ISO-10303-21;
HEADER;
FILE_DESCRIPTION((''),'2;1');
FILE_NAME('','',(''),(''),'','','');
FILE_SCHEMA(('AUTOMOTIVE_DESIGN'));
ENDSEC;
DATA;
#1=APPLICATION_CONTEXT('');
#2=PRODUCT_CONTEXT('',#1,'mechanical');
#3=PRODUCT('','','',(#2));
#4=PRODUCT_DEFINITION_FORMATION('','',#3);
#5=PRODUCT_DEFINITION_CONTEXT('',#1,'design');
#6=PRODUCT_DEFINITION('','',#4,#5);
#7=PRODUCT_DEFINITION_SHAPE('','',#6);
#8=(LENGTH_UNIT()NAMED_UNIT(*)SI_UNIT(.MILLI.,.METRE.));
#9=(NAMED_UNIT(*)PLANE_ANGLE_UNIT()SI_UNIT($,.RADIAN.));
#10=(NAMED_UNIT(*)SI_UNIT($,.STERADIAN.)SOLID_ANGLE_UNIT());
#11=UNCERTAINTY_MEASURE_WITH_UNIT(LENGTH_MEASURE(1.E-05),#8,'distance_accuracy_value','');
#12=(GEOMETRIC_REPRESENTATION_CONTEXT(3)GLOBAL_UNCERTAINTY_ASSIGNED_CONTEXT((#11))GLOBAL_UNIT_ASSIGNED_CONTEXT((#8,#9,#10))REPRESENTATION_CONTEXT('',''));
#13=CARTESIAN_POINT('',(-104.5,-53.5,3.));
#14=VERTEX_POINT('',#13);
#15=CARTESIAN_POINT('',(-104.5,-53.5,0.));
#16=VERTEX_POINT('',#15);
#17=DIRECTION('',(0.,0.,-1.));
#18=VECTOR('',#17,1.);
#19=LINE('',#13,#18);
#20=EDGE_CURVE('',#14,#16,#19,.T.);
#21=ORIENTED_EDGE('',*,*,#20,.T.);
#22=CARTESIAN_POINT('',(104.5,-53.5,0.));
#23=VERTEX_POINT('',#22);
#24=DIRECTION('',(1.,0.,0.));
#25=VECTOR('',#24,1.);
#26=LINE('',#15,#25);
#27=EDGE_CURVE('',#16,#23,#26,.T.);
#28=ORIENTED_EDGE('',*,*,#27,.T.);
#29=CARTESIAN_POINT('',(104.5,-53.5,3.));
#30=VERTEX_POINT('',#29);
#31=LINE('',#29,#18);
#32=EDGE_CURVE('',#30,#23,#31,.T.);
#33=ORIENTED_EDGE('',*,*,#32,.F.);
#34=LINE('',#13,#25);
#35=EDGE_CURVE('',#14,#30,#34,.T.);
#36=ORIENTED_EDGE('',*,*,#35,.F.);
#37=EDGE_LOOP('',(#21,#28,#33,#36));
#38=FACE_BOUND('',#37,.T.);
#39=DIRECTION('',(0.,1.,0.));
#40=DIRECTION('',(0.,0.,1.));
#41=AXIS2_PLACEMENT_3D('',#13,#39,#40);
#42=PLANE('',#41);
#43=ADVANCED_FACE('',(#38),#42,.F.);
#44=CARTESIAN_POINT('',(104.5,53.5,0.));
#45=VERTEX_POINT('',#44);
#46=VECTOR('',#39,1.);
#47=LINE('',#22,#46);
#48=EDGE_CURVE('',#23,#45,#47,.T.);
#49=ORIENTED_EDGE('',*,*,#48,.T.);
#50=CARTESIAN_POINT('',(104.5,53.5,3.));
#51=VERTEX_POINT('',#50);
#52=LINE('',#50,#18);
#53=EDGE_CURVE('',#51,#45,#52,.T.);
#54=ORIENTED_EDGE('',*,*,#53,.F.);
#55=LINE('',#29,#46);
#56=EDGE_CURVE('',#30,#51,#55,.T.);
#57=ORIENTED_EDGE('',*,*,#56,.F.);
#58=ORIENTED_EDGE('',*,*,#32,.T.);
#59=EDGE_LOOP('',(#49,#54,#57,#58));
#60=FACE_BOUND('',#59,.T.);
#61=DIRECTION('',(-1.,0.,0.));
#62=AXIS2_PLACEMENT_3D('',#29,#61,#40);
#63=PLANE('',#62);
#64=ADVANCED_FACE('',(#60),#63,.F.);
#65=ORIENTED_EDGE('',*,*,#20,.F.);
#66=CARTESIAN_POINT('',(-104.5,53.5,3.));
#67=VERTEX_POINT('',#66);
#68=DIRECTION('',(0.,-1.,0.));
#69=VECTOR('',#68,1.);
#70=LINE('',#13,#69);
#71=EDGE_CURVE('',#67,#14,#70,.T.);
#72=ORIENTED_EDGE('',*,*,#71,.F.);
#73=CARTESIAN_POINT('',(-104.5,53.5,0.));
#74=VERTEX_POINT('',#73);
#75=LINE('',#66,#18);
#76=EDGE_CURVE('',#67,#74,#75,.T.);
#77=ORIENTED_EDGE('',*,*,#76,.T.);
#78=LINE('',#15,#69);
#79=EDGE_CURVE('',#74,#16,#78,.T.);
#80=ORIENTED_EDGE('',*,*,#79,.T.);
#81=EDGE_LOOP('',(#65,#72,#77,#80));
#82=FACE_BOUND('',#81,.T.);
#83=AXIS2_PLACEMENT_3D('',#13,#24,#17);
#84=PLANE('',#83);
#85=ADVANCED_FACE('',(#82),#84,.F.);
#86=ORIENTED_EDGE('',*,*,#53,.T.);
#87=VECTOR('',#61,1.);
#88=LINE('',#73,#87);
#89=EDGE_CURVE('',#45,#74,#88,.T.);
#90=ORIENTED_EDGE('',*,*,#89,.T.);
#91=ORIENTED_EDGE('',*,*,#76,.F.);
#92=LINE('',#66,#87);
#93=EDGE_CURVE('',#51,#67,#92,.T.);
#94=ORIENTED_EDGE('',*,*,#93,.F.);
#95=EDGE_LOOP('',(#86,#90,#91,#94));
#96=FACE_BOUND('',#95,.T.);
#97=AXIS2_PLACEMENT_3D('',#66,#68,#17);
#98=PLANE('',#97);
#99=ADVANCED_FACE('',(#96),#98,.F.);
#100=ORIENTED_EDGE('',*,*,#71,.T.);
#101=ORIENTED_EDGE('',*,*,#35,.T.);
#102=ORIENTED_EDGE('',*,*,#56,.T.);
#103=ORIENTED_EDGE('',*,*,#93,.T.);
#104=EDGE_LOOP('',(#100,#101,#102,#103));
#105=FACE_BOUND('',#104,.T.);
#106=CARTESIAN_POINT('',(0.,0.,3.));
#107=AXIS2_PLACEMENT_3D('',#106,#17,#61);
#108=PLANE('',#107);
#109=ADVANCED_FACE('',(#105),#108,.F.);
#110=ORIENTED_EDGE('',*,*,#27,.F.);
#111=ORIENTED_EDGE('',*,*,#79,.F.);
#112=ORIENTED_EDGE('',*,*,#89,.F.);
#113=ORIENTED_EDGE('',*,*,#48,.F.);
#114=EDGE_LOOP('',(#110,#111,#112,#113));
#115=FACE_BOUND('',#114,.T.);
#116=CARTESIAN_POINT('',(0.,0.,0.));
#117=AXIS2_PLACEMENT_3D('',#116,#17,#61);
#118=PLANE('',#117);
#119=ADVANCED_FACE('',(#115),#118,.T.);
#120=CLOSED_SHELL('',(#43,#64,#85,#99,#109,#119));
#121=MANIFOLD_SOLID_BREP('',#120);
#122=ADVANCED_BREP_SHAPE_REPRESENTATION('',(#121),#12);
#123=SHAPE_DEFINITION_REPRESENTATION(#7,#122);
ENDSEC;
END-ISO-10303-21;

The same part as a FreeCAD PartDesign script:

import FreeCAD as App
import Part
import Sketcher


def add_polygon(sketch, points):
    """Adds a closed chain of lines whose ends are joined by coincident constraints."""
    first, n = sketch.GeometryCount, len(points)
    for a, b in zip(points, points[1:] + points[:1]):
        sketch.addGeometry(Part.LineSegment(App.Vector(*a, 0), App.Vector(*b, 0)), False)
    for i in range(n):
        sketch.addConstraint(Sketcher.Constraint("Coincident", first + i, 2, first + (i + 1) % n, 1))

doc = App.newDocument("Part")
body = doc.addObject("PartDesign::Body", "Body")

# Sketch on XY plane
sketch1 = body.newObject("Sketcher::SketchObject", "Sketch")
sketch1.AttachmentSupport = (doc.getObject("XY_Plane"), [""])
sketch1.MapMode = "FlatFace"
add_polygon(sketch1, [(-104.5, 53.5), (-104.5, -53.5), (104.5, -53.5), (104.5, 53.5)])  # lines 0-3
sketch1.addConstraint(Sketcher.Constraint("Vertical", 0))
sketch1.addConstraint(Sketcher.Constraint("Horizontal", 1))
sketch1.addConstraint(Sketcher.Constraint("Vertical", 2))
sketch1.addConstraint(Sketcher.Constraint("Horizontal", 3))
sketch1.addConstraint(Sketcher.Constraint("Symmetric", 0, 2, 2, 2, -1, 1))
sketch1.addConstraint(Sketcher.Constraint("DistanceX", 1, 1, 1, 2, 209.0))
sketch1.addConstraint(Sketcher.Constraint("DistanceY", 0, 2, 0, 1, 107.0))
pad1 = body.newObject("PartDesign::Pad", "Pad")
pad1.Profile = sketch1
pad1.Length = 3

doc.recompute()
